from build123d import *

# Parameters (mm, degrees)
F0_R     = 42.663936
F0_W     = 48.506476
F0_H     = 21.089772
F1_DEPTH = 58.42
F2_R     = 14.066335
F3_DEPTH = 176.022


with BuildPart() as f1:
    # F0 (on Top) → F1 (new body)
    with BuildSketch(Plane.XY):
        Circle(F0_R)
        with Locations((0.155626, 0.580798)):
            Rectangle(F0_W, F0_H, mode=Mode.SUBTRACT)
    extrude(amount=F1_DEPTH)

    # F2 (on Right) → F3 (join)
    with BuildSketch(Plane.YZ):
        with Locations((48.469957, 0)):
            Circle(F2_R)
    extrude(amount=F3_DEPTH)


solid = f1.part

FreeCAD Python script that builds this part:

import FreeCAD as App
import Part
import Sketcher

V = App.Vector
Q = App.Units.Quantity


def add_polygon(sketch, points):
    """Adds a closed chain of lines whose ends are joined by coincident constraints."""
    first, n = sketch.GeometryCount, len(points)
    for a, b in zip(points, points[1:] + points[:1]):
        sketch.addGeometry(Part.LineSegment(App.Vector(*a, 0), App.Vector(*b, 0)), False)
    for i in range(n):
        sketch.addConstraint(Sketcher.Constraint("Coincident", first + i, 2, first + (i + 1) % n, 1))

doc = App.newDocument("Part")
body = doc.addObject("PartDesign::Body", "Body")

# Sketch on XY plane
sketch1 = body.newObject("Sketcher::SketchObject", "Sketch")
sketch1.AttachmentSupport = (doc.getObject("XY_Plane"), [""])
sketch1.MapMode = "FlatFace"
sketch1.addGeometry(Part.Circle(V(0, 0, 0), V(0, 0, 1), 43), False)  # 0
add_polygon(sketch1, [(24, -10), (-24, -10), (-24, 11), (24, 11)])  # lines 1-4
sketch1.addConstraint([
    Sketcher.Constraint("Horizontal", 1),
    Sketcher.Constraint("Vertical", 2),
    Sketcher.Constraint("Horizontal", 3),
    Sketcher.Constraint("Vertical", 4),
    Sketcher.Constraint("Coincident", 0, 3, -1, 1),
    Sketcher.Constraint("Diameter", 0, Q("85.327872 mm")),
    Sketcher.Constraint("DistanceY", 2, 1, 2, 2, Q("21.089772 mm")),
    Sketcher.Constraint("DistanceX", 1, 2, 1, 1, Q("48.506476 mm")),
    Sketcher.Constraint("DistanceX", 1, 2, -1, 1, Q("24.097612 mm")),
    Sketcher.Constraint("DistanceY", 1, 2, -1, 1, Q("9.964088 mm")),
])
pad1 = body.newObject("PartDesign::Pad", "Pad")
pad1.Profile = sketch1
pad1.Length = Q("2.3 in")

# Sketch on YZ plane
sketch2 = body.newObject("Sketcher::SketchObject", "Sketch001")
sketch2.AttachmentSupport = (doc.getObject("YZ_Plane"), [""])
sketch2.MapMode = "FlatFace"
sketch2.addGeometry(Part.Circle(V(48, 0, 0), V(0, 0, 1), 14), False)
sketch2.addConstraint([
    Sketcher.Constraint("PointOnObject", 0, 3, -1),
    Sketcher.Constraint("Diameter", 0, Q("28.13267 mm")),
    Sketcher.Constraint("DistanceX", -1, 1, 0, 3, Q("48.469957 mm")),
])
pad2 = body.newObject("PartDesign::Pad", "Pad001")
pad2.Profile = sketch2
pad2.Length = Q("6.93 in")

doc.recompute()
